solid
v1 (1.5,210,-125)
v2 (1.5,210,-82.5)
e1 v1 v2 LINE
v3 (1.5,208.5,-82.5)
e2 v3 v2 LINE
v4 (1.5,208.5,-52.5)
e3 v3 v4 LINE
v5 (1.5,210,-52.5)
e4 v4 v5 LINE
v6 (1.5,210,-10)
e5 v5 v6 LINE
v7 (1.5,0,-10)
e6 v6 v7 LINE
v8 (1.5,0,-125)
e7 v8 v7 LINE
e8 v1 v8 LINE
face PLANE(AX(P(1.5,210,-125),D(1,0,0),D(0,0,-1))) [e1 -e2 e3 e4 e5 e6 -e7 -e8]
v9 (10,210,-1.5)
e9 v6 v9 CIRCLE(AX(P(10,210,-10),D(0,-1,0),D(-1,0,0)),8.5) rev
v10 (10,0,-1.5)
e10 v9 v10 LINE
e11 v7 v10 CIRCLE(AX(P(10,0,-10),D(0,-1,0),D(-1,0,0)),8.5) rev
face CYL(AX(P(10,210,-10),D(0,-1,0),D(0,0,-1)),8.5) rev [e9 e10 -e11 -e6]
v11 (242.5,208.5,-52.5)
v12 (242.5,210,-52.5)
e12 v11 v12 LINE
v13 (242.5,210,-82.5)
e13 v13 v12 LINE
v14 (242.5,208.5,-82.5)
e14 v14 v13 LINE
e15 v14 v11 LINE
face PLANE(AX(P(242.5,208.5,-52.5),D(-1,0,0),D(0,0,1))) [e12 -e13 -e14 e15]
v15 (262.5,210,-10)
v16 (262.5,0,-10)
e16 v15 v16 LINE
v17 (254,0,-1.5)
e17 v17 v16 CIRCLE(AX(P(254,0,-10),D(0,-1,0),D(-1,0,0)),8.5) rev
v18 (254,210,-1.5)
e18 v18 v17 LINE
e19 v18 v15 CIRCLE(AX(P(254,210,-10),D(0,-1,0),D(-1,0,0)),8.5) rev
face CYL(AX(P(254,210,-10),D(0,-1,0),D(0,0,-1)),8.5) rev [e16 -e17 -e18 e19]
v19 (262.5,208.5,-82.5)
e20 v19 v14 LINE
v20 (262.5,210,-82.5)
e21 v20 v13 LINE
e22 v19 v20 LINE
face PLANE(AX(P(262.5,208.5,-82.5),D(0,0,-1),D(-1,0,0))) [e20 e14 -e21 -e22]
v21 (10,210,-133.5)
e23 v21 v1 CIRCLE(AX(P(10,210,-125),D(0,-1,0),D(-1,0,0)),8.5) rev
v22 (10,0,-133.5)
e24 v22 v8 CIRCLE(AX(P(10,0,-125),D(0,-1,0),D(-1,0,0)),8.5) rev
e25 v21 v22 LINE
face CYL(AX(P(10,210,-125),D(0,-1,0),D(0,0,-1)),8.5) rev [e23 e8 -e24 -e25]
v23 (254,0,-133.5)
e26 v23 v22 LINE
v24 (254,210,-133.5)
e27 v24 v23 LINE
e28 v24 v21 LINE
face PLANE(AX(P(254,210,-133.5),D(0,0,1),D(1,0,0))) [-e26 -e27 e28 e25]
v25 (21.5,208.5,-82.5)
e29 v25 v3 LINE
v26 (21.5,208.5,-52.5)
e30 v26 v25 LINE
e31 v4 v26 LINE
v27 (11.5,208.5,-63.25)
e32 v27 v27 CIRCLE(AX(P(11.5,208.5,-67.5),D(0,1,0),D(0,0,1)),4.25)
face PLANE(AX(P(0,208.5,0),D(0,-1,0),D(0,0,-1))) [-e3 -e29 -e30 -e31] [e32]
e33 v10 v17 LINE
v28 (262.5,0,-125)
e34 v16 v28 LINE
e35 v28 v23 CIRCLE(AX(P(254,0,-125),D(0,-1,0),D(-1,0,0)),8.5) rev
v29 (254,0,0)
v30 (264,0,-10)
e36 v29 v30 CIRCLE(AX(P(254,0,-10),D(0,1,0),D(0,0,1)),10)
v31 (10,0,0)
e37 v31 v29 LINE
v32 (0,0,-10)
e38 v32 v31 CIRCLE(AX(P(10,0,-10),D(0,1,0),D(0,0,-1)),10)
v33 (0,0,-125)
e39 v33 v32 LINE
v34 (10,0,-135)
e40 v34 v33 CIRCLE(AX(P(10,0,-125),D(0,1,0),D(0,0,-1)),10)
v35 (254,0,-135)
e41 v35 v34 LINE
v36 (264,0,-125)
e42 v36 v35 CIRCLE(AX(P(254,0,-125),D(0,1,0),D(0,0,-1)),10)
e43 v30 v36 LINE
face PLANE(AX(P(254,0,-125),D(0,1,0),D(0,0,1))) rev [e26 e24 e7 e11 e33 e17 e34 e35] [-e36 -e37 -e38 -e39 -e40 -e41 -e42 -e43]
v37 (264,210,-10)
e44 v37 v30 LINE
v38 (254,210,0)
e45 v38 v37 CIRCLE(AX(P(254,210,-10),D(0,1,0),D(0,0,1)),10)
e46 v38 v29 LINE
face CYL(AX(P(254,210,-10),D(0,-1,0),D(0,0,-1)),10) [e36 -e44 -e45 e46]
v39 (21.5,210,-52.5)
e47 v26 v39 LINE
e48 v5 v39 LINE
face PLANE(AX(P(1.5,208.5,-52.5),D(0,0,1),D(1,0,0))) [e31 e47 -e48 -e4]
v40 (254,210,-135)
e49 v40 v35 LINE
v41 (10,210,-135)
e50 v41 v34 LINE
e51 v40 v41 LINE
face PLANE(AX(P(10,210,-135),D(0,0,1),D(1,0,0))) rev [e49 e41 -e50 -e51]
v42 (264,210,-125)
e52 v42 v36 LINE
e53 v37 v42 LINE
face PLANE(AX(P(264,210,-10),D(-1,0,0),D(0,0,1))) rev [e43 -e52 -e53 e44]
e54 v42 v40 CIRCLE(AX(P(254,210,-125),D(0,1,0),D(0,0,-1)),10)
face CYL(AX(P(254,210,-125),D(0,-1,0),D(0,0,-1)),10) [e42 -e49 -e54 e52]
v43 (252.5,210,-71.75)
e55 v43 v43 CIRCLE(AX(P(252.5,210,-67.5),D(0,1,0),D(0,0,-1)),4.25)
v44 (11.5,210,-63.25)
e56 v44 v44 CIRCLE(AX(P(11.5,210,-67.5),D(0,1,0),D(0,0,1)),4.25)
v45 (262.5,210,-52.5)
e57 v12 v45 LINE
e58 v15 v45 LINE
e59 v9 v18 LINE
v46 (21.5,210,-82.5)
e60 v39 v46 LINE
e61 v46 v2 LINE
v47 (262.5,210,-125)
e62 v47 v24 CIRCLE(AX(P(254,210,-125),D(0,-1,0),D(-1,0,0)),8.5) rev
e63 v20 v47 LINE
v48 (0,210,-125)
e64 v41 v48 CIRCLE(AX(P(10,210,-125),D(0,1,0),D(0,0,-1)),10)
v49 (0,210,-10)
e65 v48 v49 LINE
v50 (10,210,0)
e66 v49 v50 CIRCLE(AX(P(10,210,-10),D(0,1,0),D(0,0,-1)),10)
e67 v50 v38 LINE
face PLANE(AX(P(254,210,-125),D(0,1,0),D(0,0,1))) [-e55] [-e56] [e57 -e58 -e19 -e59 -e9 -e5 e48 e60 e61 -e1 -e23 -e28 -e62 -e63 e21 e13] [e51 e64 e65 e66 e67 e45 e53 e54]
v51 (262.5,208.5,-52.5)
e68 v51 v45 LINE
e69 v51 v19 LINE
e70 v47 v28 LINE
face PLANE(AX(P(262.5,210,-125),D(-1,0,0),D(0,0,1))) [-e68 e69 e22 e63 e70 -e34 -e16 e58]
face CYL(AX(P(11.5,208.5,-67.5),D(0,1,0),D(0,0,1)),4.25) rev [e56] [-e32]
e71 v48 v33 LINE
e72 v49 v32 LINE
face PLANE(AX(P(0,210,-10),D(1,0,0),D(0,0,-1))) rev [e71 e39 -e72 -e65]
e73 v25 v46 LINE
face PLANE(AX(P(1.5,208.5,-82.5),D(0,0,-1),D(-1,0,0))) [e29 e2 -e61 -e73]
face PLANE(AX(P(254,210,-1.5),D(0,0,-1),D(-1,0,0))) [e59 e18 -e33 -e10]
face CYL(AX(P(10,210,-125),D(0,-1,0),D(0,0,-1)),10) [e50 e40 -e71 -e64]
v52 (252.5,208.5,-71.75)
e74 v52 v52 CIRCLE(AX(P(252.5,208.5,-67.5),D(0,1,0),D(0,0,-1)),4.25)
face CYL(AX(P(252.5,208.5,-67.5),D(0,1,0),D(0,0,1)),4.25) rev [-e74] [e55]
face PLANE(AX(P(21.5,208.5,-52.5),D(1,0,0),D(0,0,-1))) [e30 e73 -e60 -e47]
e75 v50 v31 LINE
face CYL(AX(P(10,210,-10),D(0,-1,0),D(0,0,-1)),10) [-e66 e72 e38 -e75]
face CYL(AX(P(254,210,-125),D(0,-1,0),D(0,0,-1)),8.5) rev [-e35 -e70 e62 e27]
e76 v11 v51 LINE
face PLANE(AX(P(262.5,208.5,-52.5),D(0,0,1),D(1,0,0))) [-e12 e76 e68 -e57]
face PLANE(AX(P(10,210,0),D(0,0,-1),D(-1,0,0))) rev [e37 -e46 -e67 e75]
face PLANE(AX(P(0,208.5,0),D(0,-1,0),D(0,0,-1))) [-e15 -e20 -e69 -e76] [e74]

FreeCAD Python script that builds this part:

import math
import FreeCAD as App
import Part
import Sketcher
from FreeCAD import Vector
Q = App.Units.Quantity


def add_polygon(sketch, points):
    """Adds a closed chain of lines whose ends are joined by coincident constraints."""
    first, n = sketch.GeometryCount, len(points)
    for a, b in zip(points, points[1:] + points[:1]):
        sketch.addGeometry(Part.LineSegment(App.Vector(*a, 0), App.Vector(*b, 0)), False)
    for i in range(n):
        sketch.addConstraint(Sketcher.Constraint("Coincident", first + i, 2, first + (i + 1) % n, 1))

doc = App.newDocument("Part")
body = doc.addObject("PartDesign::Body", "Body")

sketch1 = body.newObject("Sketcher::SketchObject", "Sketch")
sketch1.AttachmentSupport = (doc.getObject("XZ_Plane"), [""])
sketch1.MapMode = "FlatFace"
sketch1.addGeometry([
    Part.LineSegment(Vector(0, -125, 0), Vector(0, -10, 0)),
    Part.ArcOfCircle(Part.Circle(Vector(10, -10, 0), Vector(0, 0, 1), 10), math.radians(90), math.radians(180)),
    Part.LineSegment(Vector(10, 0, 0), Vector(254, 0, 0)),
    Part.ArcOfCircle(Part.Circle(Vector(254, -10, 0), Vector(0, 0, 1), 10), math.radians(0), math.radians(90)),
    Part.LineSegment(Vector(264, -10, 0), Vector(264, -125, 0)),
    Part.ArcOfCircle(Part.Circle(Vector(254, -125, 0), Vector(0, 0, 1), 10), math.radians(-90), math.radians(0)),
    Part.LineSegment(Vector(254, -135, 0), Vector(10, -135, 0)),
    Part.ArcOfCircle(Part.Circle(Vector(10, -125, 0), Vector(0, 0, 1), 10), math.radians(180), math.radians(270)),
    Part.LineSegment(Vector(2, -10, 0), Vector(2, -125, 0)),
    Part.ArcOfCircle(Part.Circle(Vector(10, -125, 0), Vector(0, 0, 1), 8), math.radians(180), math.radians(270)),
    Part.LineSegment(Vector(10, -134, 0), Vector(254, -134, 0)),
    Part.ArcOfCircle(Part.Circle(Vector(254, -125, 0), Vector(0, 0, 1), 8), math.radians(-90), math.radians(0)),
    Part.LineSegment(Vector(262, -125, 0), Vector(262, -10, 0)),
    Part.ArcOfCircle(Part.Circle(Vector(254, -10, 0), Vector(0, 0, 1), 8), math.radians(0), math.radians(90)),
    Part.LineSegment(Vector(254, -2, 0), Vector(10, -2, 0)),
    Part.ArcOfCircle(Part.Circle(Vector(10, -10, 0), Vector(0, 0, 1), 8), math.radians(90), math.radians(180)),
], False)
sketch1.addConstraint([
    Sketcher.Constraint("Tangent", 0, 2, 1, 2),
    Sketcher.Constraint("Tangent", 1, 1, 2, 1),
    Sketcher.Constraint("Tangent", 2, 2, 3, 2),
    Sketcher.Constraint("Tangent", 3, 1, 4, 1),
    Sketcher.Constraint("Tangent", 4, 2, 5, 2),
    Sketcher.Constraint("Tangent", 5, 1, 6, 1),
    Sketcher.Constraint("Tangent", 6, 2, 7, 2),
    Sketcher.Constraint("Tangent", 7, 1, 0, 1),
    Sketcher.Constraint("Tangent", 8, 2, 9, 1),
    Sketcher.Constraint("Tangent", 9, 2, 10, 1),
    Sketcher.Constraint("Tangent", 10, 2, 11, 1),
    Sketcher.Constraint("Tangent", 11, 2, 12, 1),
    Sketcher.Constraint("Tangent", 12, 2, 13, 1),
    Sketcher.Constraint("Tangent", 13, 2, 14, 1),
    Sketcher.Constraint("Tangent", 14, 2, 15, 1),
    Sketcher.Constraint("Tangent", 15, 2, 8, 1),
    Sketcher.Constraint("Vertical", 0),
    Sketcher.Constraint("Horizontal", 2),
    Sketcher.Constraint("Vertical", 4),
    Sketcher.Constraint("Horizontal", 6),
    Sketcher.Constraint("Vertical", 8),
    Sketcher.Constraint("Horizontal", 10),
    Sketcher.Constraint("Vertical", 12),
    Sketcher.Constraint("Horizontal", 14),
    Sketcher.Constraint("Coincident", 9, 3, 7, 3),
    Sketcher.Constraint("Coincident", 11, 3, 5, 3),
    Sketcher.Constraint("Coincident", 13, 3, 3, 3),
    Sketcher.Constraint("Equal", 1, 3),
    Sketcher.Constraint("Equal", 3, 5),
    Sketcher.Constraint("Equal", 5, 7),
    Sketcher.Constraint("Equal", 13, 15),
    Sketcher.Constraint("PointOnObject", 0, 2, -2),
    Sketcher.Constraint("PointOnObject", 1, 1, -1),
    Sketcher.Constraint("Radius", 1, Q("10 mm")),
    Sketcher.Constraint("Radius", 9, Q("8.5 mm")),
    Sketcher.Constraint("DistanceX", 2, 1, 2, 2, Q("244 mm")),
    Sketcher.Constraint("DistanceY", 0, 1, 0, 2, Q("115 mm")),
])
pad1 = body.newObject("PartDesign::Pad", "Pad")
pad1.Profile = sketch1
pad1.Length = 210
pad1.Reversed = True

sketch2 = body.newObject("Sketcher::SketchObject", "Sketch001")
sketch2.AttachmentSupport = (doc.getObject("XZ_Plane"), [""])
sketch2.MapMode = "FlatFace"
sketch2.AttachmentOffset = App.Placement(Vector(0, 0, -210), App.Rotation())
add_polygon(sketch2, [(1.5, -82.5), (1.5, -52.5), (21.5, -52.5), (21.5, -82.5)])
sketch2.addGeometry(Part.Circle(Vector(11.5, -67.5, 0), Vector(0, 0, 1), 4.2), False)
add_polygon(sketch2, [(242.5, -82.5), (242.5, -52.5), (262.5, -52.5), (262.5, -82.5)])
sketch2.addGeometry(Part.Circle(Vector(252.5, -67.5, 0), Vector(0, 0, 1), 4.2), False)
sketch2.addConstraint([
    Sketcher.Constraint("Vertical", 0),
    Sketcher.Constraint("Horizontal", 1),
    Sketcher.Constraint("Vertical", 2),
    Sketcher.Constraint("Horizontal", 3),
    Sketcher.Constraint("Vertical", 5),
    Sketcher.Constraint("Horizontal", 6),
    Sketcher.Constraint("Vertical", 7),
    Sketcher.Constraint("Horizontal", 8),
    Sketcher.Constraint("Equal", 4, 9),
    Sketcher.Constraint("Horizontal", 4, 3, 9, 3),
    Sketcher.Constraint("Horizontal", 1, 2, 5, 2),
    Sketcher.Constraint("Horizontal", 3, 2, 7, 2),
    Sketcher.Constraint("Equal", 3, 6),
    Sketcher.Constraint("Diameter", 4, Q("8.5 mm")),
    Sketcher.Constraint("DistanceX", 1, 1, 1, 2, Q("20 mm")),
    Sketcher.Constraint("DistanceY", 0, 1, 0, 2, Q("30 mm")),
    Sketcher.Constraint("DistanceX", 4, 3, 9, 3, Q("241 mm")),
    Sketcher.Constraint("DistanceX", 0, 2, 4, 3, Q("10 mm")),
    Sketcher.Constraint("DistanceY", 4, 3, 0, 2, Q("15 mm")),
    Sketcher.Constraint("DistanceX", 5, 2, 9, 3, Q("10 mm")),
    Sketcher.Constraint("DistanceX", -1, 1, 4, 3, Q("11.5 mm")),
    Sketcher.Constraint("DistanceY", 4, 3, -1, 1, Q("67.5 mm")),
])
pad2 = body.newObject("PartDesign::Pad", "Pad001")
pad2.Profile = sketch2
pad2.Length = 1.5

doc.recompute()
